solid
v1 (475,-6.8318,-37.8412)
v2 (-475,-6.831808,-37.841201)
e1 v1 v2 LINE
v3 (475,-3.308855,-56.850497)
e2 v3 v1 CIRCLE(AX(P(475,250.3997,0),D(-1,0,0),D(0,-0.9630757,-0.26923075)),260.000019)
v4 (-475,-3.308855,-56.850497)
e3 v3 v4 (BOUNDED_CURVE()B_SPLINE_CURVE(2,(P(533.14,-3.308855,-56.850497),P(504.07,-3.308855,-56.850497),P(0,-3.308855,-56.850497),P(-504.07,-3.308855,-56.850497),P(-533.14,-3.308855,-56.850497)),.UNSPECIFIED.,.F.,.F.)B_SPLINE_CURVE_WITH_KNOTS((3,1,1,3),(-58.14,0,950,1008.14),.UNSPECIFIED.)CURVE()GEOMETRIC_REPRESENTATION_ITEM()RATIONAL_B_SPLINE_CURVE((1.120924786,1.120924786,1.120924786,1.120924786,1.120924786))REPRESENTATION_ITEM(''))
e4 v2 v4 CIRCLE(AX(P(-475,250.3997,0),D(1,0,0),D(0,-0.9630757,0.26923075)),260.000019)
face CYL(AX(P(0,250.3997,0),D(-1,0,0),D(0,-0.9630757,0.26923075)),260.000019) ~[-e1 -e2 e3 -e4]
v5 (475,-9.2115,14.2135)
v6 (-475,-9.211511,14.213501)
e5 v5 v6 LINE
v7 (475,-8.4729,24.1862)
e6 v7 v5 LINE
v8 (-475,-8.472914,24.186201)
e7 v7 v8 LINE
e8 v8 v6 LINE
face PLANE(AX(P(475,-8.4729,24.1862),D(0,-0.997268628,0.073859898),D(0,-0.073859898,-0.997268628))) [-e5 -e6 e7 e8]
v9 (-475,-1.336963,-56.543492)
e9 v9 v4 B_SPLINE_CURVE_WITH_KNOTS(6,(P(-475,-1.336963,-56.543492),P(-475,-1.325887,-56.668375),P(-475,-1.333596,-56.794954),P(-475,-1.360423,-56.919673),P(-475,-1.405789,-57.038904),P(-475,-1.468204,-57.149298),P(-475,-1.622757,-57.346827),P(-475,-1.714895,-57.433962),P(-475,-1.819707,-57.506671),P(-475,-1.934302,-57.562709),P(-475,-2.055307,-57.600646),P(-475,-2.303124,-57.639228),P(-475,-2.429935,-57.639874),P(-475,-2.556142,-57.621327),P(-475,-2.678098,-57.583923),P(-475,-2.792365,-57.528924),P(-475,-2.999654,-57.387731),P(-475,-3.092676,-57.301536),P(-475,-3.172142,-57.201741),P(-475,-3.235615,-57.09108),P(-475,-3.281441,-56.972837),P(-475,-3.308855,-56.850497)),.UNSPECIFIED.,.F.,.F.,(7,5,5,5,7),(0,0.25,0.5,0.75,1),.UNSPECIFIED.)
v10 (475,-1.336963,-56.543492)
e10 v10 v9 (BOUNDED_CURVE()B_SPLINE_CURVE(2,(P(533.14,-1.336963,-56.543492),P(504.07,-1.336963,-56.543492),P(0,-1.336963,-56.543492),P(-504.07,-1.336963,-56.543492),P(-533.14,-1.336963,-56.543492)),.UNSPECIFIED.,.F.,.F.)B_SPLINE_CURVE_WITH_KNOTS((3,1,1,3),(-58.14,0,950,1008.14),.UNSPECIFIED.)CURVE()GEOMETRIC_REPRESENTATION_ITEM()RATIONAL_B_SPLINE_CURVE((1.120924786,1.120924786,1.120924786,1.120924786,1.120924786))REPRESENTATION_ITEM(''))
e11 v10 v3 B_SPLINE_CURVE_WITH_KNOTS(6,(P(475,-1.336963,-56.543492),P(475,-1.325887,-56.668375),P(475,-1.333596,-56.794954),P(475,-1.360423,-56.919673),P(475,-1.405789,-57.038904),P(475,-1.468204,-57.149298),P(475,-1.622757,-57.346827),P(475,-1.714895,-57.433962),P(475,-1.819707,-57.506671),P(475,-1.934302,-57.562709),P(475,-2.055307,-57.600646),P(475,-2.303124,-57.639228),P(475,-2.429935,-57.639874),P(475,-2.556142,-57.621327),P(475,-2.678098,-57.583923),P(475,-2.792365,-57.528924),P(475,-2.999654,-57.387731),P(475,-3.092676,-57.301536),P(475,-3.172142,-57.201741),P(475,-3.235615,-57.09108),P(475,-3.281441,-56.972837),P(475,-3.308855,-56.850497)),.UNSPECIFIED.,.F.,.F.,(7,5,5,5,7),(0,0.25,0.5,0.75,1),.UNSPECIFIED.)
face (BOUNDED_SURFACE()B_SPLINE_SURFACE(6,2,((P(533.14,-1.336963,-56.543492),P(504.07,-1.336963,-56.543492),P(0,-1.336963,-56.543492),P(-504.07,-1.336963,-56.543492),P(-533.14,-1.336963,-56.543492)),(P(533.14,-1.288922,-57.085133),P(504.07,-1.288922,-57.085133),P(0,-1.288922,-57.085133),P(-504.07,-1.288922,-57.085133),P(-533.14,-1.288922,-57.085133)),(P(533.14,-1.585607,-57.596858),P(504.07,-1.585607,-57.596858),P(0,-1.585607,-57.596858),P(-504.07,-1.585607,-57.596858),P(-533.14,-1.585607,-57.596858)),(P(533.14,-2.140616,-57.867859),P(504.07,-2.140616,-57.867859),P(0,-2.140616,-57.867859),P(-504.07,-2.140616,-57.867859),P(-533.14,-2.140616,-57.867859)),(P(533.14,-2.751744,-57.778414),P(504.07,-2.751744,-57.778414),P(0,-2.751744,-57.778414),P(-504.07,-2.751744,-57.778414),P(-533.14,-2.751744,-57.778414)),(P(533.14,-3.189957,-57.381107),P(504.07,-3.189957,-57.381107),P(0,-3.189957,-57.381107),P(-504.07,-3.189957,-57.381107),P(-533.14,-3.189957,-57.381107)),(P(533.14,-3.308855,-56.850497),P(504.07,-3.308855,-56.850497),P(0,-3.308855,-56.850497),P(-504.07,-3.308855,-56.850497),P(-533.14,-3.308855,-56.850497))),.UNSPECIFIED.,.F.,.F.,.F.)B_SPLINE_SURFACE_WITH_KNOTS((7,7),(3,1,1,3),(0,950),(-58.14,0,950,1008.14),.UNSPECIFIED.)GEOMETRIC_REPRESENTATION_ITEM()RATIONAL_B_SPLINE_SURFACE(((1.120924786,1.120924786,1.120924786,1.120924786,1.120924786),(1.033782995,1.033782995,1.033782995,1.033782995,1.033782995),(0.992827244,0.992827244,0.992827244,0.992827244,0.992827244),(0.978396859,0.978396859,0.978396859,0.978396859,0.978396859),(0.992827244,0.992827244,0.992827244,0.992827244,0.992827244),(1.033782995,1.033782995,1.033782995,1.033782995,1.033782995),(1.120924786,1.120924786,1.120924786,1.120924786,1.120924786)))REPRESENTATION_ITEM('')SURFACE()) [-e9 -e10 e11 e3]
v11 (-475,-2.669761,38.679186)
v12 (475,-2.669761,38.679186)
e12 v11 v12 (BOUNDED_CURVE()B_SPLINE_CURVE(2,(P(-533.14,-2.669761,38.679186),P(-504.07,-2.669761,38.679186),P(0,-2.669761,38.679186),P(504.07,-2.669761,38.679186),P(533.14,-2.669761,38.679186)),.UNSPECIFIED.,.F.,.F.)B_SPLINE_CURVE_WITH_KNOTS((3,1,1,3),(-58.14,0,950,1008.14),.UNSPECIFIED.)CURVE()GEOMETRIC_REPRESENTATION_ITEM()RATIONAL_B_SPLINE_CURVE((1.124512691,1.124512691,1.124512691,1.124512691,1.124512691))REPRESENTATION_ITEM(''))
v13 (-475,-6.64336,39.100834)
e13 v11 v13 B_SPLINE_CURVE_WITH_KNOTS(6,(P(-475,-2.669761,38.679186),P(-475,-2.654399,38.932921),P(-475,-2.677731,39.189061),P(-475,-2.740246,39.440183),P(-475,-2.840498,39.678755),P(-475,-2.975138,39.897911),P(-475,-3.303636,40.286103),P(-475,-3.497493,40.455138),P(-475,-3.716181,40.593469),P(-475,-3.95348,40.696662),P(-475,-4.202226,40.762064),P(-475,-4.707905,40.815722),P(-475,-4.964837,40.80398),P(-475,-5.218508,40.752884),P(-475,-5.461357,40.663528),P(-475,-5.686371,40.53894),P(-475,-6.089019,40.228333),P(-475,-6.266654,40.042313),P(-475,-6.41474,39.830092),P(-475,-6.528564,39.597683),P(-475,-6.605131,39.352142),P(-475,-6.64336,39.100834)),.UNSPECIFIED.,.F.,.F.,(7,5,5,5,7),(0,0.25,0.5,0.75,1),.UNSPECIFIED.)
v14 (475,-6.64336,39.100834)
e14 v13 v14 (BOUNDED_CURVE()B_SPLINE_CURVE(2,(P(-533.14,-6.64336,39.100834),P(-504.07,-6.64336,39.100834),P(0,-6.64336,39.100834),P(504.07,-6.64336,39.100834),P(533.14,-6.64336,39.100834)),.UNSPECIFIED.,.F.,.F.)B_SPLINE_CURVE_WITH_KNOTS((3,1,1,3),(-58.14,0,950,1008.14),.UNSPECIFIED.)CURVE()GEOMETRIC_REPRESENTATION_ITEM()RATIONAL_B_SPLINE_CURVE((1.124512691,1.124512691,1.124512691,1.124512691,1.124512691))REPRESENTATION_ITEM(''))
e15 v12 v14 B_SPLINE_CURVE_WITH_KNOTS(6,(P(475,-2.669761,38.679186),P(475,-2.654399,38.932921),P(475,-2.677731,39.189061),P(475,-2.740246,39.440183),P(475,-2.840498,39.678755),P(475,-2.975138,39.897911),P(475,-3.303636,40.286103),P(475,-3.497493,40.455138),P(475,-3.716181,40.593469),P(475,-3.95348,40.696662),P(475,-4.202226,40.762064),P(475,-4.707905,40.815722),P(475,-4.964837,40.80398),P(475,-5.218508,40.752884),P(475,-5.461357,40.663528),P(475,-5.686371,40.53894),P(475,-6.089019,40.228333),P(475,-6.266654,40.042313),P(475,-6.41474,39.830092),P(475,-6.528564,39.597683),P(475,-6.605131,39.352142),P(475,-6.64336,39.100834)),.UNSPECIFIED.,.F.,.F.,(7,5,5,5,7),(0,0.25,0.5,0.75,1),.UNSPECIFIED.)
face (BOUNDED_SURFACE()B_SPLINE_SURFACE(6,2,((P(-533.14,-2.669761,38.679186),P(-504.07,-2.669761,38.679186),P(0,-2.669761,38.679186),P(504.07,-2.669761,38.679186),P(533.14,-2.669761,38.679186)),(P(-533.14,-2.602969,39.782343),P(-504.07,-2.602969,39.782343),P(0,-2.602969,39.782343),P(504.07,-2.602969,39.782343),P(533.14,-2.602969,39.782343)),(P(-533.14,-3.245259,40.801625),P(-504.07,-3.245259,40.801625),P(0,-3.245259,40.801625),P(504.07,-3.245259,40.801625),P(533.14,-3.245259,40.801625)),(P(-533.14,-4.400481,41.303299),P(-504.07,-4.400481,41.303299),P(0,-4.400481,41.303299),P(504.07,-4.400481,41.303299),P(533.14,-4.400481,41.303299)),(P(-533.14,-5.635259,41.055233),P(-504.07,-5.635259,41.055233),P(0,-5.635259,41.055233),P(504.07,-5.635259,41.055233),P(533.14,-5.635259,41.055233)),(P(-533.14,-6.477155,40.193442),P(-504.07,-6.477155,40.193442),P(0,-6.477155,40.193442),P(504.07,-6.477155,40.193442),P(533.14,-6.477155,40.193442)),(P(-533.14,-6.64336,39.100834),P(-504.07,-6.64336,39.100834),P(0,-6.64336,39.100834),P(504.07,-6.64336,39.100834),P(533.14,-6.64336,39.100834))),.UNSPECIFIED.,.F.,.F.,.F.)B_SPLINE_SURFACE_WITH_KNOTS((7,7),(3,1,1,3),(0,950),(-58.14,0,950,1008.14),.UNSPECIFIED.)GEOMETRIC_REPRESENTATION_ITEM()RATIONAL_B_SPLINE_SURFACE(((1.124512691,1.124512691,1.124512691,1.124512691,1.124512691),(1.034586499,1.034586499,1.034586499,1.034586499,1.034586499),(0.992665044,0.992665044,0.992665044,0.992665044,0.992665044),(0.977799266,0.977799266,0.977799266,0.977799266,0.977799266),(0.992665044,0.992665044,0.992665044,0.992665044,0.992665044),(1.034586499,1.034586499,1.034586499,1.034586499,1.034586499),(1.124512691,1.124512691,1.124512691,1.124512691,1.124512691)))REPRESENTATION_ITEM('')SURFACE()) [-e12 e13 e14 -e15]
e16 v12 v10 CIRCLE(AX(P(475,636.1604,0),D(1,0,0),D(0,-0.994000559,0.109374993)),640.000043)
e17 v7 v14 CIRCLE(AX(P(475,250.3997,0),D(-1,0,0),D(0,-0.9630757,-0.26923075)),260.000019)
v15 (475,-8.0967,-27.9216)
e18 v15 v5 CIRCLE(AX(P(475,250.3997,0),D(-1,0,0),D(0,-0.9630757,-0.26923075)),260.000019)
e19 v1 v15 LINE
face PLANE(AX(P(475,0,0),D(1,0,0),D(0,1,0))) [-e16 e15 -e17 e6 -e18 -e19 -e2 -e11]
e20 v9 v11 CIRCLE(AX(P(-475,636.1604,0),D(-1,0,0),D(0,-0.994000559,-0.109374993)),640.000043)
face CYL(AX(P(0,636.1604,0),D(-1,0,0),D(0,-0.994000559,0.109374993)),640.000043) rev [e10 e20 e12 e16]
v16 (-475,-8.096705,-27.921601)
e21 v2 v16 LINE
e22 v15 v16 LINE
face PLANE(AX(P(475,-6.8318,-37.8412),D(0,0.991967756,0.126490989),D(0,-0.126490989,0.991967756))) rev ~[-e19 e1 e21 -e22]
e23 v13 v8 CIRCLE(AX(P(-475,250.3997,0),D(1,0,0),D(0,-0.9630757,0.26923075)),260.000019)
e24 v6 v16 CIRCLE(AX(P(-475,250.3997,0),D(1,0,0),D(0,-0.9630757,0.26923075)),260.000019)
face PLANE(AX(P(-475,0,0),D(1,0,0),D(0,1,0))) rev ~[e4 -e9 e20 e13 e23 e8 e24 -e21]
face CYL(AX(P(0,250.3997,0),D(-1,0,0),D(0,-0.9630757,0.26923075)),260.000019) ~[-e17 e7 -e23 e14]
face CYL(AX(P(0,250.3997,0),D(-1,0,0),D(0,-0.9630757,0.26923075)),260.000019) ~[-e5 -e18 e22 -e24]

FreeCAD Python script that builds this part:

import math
import FreeCAD as App
import Part
import Sketcher
Q = App.Units.Quantity


def edges_at(feature, points):
    """Names of the edges that pass closest to the given points."""
    edges = feature.Shape.Edges
    near = lambda p: min(range(len(edges)), key=lambda i: edges[i].distToShape(Part.Vertex(*p))[0])
    return sorted({f"Edge{near(p) + 1}" for p in points})

doc = App.newDocument("Part")
body = doc.addObject("PartDesign::Body", "Body")

# Sketch on YZ plane
sketch1 = body.newObject("Sketcher::SketchObject", "Sketch")
sketch1.AttachmentSupport = (doc.getObject("YZ_Plane"), [""])
sketch1.MapMode = "FlatFace"
sketch1.addGeometry([
    Part.ArcOfCircle(Part.Circle(App.Vector(250, 0, 0), App.Vector(0, 0, 1), 260), math.radians(164), math.radians(196)),
    Part.ArcOfCircle(Part.Circle(App.Vector(636, 0, 0), App.Vector(0, 0, 1), 640), math.radians(173.72), math.radians(186.28)),
], False)
sketch1.addConstraint([
    Sketcher.Constraint("Coincident", 0, 1, 1, 1),
    Sketcher.Constraint("Coincident", 1, 2, 0, 2),
    Sketcher.Constraint("Symmetric", 0, 1, 1, 2, -1, 1),
    Sketcher.Constraint("PointOnObject", 0, 3, -1),
    Sketcher.Constraint("Radius", 0, Q("260 mm")),
    Sketcher.Constraint("Radius", 1, Q("640 mm")),
    Sketcher.Constraint("DistanceY", 1, 2, 0, 1, Q("140 mm")),
])
pad1 = body.newObject("PartDesign::Pad", "Pad")
pad1.Profile = sketch1
pad1.Length = 950
pad1.Midplane = True
doc.recompute()

fillet = body.newObject("PartDesign::Fillet", "Fillet")
fillet.Base = (pad1, edges_at(pad1, [(0, 0, 70)]))
fillet.Radius = 2
doc.recompute()

fillet2 = body.newObject("PartDesign::Fillet", "Fillet001")
fillet2.Base = (fillet, edges_at(fillet, [(0, 0, -70)]))
fillet2.Radius = 1

# Sketch on YZ plane
sketch2 = body.newObject("Sketcher::SketchObject", "Sketch001")
sketch2.AttachmentSupport = (doc.getObject("YZ_Plane"), [""])
sketch2.MapMode = "FlatFace"
sketch2.AttachmentOffset = App.Placement(App.Vector(0, 0, 475), App.Rotation())
sketch2.addGeometry([
    Part.LineSegment(App.Vector(-7, -38, 0), App.Vector(-8, -28, 0)),
    Part.ArcOfCircle(Part.Circle(App.Vector(250, 0, 0), App.Vector(0, 0, 1), 260), math.radians(-173.84), math.radians(-171.63)),
    Part.LineSegment(App.Vector(-9, 14, 0), App.Vector(-8, 24, 0)),
    Part.ArcOfCircle(Part.Circle(App.Vector(250, 0, 0), App.Vector(0, 0, 1), 260), math.radians(174.66), math.radians(176.87)),
], False)
sketch2.addConstraint([
    Sketcher.Constraint("Coincident", 0, 1, 1, 2),
    Sketcher.Constraint("Coincident", 1, 1, 0, 2),
    Sketcher.Constraint("Coincident", 2, 1, 3, 2),
    Sketcher.Constraint("Coincident", 3, 1, 2, 2),
    Sketcher.Constraint("Coincident", 3, 3, 1, 3),
    Sketcher.Constraint("Equal", 1, 3),
    Sketcher.Constraint("PointOnObject", 1, 3, -1),
    Sketcher.Constraint("Equal", 0, 2),
    Sketcher.Constraint("Distance", 0, Q("10 mm")),
    Sketcher.Constraint("Radius", 1, Q("260 mm")),
    Sketcher.Constraint("DistanceX", 3, 1, -1, 1, Q("8.473 mm")),
    Sketcher.Constraint("DistanceY", 1, 1, 2, 1, Q("42.135 mm")),
    Sketcher.Constraint("DistanceX", -1, 1, 1, 3, Q("250.3997 mm")),
])
pocket1 = body.newObject("PartDesign::Pocket", "Pocket")
pocket1.Profile = sketch2
pocket1.Type = "ThroughAll"

doc.recompute()
